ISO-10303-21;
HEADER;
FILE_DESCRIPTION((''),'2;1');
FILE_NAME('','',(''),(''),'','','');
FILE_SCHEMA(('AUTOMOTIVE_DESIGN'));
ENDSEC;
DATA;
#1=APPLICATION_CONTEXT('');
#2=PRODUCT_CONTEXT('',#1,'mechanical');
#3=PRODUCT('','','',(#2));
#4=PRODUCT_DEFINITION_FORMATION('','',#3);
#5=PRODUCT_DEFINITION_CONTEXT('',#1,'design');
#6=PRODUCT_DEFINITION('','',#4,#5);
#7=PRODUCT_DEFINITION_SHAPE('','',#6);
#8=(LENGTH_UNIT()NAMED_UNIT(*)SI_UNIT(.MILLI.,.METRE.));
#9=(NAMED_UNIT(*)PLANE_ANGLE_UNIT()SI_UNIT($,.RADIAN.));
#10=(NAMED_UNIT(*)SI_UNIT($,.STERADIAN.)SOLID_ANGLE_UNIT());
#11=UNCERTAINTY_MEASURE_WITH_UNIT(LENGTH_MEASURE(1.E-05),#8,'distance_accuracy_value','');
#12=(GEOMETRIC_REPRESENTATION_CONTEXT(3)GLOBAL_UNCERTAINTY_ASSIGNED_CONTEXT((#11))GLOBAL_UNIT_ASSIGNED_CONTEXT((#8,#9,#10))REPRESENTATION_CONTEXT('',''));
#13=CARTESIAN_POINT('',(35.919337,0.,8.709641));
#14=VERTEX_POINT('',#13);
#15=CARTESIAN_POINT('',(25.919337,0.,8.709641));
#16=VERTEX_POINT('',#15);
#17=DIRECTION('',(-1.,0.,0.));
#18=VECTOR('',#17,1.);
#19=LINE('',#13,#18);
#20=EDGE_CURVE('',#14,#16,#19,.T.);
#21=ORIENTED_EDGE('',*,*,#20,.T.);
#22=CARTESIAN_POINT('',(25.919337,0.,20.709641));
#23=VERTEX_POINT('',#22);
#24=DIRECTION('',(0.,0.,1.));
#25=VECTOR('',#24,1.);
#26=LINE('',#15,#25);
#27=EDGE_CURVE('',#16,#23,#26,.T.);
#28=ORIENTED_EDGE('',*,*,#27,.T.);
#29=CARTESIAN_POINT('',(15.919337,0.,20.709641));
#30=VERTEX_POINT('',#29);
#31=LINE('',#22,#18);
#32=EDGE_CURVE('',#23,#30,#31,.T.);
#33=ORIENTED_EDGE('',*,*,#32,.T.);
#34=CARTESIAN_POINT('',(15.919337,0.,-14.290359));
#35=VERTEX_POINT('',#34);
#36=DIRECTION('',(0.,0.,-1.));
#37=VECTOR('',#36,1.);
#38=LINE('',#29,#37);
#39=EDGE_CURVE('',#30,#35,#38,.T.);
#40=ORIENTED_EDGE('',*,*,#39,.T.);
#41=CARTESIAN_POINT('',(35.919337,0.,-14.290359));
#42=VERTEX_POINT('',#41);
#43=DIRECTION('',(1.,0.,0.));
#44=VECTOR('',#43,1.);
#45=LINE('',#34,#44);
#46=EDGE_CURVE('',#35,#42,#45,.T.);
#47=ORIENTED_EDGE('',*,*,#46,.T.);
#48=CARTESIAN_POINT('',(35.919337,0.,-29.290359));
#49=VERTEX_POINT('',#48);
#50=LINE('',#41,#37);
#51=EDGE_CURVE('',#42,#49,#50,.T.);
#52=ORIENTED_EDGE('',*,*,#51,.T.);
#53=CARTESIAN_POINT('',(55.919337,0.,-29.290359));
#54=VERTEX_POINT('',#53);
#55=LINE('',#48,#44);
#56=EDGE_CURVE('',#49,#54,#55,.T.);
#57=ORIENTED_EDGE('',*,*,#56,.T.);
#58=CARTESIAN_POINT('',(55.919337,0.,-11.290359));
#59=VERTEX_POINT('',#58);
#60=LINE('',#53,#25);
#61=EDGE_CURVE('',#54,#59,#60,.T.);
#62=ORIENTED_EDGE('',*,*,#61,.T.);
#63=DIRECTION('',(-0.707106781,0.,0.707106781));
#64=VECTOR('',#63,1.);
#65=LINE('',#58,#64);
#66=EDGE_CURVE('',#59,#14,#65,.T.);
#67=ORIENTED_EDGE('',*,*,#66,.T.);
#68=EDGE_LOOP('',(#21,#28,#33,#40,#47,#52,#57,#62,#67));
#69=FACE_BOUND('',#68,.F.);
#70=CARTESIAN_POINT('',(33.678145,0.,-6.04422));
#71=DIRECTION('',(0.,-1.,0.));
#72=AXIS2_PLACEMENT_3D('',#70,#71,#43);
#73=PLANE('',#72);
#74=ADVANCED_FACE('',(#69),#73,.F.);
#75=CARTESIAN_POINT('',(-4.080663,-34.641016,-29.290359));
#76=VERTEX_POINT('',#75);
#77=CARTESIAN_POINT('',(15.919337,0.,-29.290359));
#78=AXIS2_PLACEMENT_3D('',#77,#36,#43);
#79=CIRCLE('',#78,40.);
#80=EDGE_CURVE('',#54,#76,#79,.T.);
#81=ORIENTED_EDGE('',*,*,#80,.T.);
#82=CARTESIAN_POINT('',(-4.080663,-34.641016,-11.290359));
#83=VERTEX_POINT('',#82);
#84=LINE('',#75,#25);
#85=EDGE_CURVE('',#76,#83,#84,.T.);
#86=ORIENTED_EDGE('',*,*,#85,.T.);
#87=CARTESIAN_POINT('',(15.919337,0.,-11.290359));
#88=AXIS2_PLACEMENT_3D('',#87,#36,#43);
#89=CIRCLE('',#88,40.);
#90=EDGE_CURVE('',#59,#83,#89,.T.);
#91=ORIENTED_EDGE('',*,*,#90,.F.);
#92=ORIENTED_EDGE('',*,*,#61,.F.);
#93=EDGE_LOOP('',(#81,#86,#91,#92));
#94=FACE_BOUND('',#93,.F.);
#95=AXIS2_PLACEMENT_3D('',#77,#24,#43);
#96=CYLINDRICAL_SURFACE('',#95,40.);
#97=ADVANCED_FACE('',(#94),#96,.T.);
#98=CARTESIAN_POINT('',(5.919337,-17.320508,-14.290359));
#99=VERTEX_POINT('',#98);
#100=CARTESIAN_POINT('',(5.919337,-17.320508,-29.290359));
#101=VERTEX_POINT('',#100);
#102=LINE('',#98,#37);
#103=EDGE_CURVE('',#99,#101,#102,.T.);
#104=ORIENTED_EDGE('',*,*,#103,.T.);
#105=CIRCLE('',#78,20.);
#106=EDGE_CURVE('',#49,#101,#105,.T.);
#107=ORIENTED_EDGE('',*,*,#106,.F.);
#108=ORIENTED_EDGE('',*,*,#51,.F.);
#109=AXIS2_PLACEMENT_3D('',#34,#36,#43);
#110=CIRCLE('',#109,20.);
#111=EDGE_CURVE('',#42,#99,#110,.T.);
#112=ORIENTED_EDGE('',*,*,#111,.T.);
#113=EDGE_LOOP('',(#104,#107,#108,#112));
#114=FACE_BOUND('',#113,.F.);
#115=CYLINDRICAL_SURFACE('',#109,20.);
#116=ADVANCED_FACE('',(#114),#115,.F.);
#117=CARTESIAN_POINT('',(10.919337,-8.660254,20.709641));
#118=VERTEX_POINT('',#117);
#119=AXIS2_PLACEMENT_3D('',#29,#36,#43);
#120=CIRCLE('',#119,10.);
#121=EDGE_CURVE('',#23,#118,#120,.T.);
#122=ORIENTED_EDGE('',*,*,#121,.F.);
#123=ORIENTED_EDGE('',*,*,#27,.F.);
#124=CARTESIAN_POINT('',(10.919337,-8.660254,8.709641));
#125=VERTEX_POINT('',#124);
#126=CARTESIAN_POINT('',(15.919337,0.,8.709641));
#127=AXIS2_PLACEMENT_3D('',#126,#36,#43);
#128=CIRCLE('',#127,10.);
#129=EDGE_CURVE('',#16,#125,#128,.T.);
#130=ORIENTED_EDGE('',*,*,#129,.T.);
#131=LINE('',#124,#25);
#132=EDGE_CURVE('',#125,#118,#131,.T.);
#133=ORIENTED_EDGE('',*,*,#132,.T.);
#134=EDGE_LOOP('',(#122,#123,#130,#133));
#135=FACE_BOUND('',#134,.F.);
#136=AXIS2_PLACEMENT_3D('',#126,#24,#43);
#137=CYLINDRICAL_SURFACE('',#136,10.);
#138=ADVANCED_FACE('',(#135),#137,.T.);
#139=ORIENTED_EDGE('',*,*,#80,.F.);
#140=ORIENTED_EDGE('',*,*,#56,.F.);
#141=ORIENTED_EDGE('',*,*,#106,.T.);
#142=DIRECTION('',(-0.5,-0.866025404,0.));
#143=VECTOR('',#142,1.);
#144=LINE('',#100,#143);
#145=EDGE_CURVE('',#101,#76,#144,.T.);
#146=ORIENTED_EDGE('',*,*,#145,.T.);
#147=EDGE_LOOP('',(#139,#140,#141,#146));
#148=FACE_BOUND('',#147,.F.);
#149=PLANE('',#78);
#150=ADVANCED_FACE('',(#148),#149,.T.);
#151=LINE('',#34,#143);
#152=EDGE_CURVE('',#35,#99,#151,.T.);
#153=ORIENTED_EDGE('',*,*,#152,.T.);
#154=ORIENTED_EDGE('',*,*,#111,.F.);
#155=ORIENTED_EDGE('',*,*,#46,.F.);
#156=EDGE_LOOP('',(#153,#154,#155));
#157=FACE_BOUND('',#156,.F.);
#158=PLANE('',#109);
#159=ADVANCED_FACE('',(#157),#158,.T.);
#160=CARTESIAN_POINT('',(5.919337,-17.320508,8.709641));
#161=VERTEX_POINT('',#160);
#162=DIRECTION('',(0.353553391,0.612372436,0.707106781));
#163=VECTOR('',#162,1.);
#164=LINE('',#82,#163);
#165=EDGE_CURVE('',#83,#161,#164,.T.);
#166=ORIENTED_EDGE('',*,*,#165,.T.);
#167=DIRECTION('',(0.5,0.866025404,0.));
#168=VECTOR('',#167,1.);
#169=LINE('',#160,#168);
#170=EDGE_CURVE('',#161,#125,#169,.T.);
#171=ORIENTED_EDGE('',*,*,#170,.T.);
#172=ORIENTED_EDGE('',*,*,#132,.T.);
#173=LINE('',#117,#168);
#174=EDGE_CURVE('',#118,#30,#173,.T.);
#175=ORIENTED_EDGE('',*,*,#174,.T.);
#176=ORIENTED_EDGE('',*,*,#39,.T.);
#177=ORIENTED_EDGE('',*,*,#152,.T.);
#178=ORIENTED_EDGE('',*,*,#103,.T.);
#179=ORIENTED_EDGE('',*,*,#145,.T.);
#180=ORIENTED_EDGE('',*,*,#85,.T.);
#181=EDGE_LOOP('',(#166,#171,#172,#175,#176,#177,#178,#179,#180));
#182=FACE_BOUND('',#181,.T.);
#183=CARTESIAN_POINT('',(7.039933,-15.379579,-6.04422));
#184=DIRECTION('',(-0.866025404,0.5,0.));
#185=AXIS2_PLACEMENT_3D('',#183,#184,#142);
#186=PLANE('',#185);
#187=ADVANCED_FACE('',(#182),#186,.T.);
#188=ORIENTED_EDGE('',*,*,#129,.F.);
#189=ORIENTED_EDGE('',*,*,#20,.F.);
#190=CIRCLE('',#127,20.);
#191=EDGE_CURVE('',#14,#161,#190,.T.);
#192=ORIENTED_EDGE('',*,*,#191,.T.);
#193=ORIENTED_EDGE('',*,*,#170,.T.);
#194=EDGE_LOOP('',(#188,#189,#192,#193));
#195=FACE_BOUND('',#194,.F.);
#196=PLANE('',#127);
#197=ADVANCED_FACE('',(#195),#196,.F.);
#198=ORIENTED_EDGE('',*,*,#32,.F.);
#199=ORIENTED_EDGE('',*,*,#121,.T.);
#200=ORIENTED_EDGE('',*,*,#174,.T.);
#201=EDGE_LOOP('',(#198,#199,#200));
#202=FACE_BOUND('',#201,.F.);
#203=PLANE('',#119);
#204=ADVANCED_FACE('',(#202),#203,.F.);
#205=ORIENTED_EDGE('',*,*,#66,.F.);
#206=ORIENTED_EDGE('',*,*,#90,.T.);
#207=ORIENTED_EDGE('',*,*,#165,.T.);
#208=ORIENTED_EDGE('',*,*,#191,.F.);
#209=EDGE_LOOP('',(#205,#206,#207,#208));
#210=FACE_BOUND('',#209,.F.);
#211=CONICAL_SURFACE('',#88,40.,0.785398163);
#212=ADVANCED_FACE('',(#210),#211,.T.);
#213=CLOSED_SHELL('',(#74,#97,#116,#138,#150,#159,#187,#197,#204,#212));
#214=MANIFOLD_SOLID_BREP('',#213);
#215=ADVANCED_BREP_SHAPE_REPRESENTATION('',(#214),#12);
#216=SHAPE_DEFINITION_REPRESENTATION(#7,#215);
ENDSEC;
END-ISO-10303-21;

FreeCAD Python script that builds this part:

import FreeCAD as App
import Part
import Sketcher
from FreeCAD import Vector


def add_polygon(sketch, points):
    """Adds a closed chain of lines whose ends are joined by coincident constraints."""
    first, n = sketch.GeometryCount, len(points)
    for a, b in zip(points, points[1:] + points[:1]):
        sketch.addGeometry(Part.LineSegment(App.Vector(*a, 0), App.Vector(*b, 0)), False)
    for i in range(n):
        sketch.addConstraint(Sketcher.Constraint("Coincident", first + i, 2, first + (i + 1) % n, 1))

doc = App.newDocument("Part")
body = doc.addObject("PartDesign::Body", "Body")

# Sketch on XZ plane
sketch1 = body.newObject("Sketcher::SketchObject", "Sketch")
sketch1.AttachmentSupport = (doc.getObject("XZ_Plane"), [""])
sketch1.MapMode = "FlatFace"
add_polygon(sketch1, [(26, 21), (16, 21), (16, -14), (36, -14), (36, -29), (56, -29), (56, -11), (36, 9), (26, 9)])  # lines 0-8
sketch1.addGeometry(Part.LineSegment(Vector(16, 21, 0), Vector(16, -29, 0)), True)  # axis
sketch1.addConstraint(Sketcher.Constraint("Horizontal", 0))
sketch1.addConstraint(Sketcher.Constraint("Vertical", 1))
sketch1.addConstraint(Sketcher.Constraint("Horizontal", 2))
sketch1.addConstraint(Sketcher.Constraint("Vertical", 3))
sketch1.addConstraint(Sketcher.Constraint("Horizontal", 4))
sketch1.addConstraint(Sketcher.Constraint("Vertical", 5))
sketch1.addConstraint(Sketcher.Constraint("Horizontal", 7))
sketch1.addConstraint(Sketcher.Constraint("Vertical", 8))
sketch1.addConstraint(Sketcher.Constraint("Vertical", 9))
sketch1.addConstraint(Sketcher.Constraint("Coincident", 9, 1, 0, 2))
sketch1.addConstraint(Sketcher.Constraint("Horizontal", 4, 2, 9, 2))
sketch1.addConstraint(Sketcher.Constraint("Vertical", 3, 2, 6, 2))
sketch1.addConstraint(Sketcher.Constraint("Equal", 2, 4))
sketch1.addConstraint(Sketcher.Constraint("Equal", 0, 7))
sketch1.addConstraint(Sketcher.Constraint("DistanceX", 0, 2, 0, 1, 10.0))
sketch1.addConstraint(Sketcher.Constraint("DistanceY", 1, 2, 1, 1, 35.0))
sketch1.addConstraint(Sketcher.Constraint("DistanceY", 3, 2, 3, 1, 15.0))
sketch1.addConstraint(Sketcher.Constraint("DistanceY", 5, 1, 5, 2, 18.0))
sketch1.addConstraint(Sketcher.Constraint("DistanceY", 8, 1, 8, 2, 12.0))
sketch1.addConstraint(Sketcher.Constraint("DistanceY", -1, 1, 0, 2, 20.709641))
sketch1.addConstraint(Sketcher.Constraint("DistanceX", -1, 1, 0, 2, 15.919337))
revolution = body.newObject("PartDesign::Revolution", "Revolution")
revolution.Profile = sketch1
revolution.ReferenceAxis = (sketch1, ["Axis0"])
revolution.Angle = 120

doc.recompute()
